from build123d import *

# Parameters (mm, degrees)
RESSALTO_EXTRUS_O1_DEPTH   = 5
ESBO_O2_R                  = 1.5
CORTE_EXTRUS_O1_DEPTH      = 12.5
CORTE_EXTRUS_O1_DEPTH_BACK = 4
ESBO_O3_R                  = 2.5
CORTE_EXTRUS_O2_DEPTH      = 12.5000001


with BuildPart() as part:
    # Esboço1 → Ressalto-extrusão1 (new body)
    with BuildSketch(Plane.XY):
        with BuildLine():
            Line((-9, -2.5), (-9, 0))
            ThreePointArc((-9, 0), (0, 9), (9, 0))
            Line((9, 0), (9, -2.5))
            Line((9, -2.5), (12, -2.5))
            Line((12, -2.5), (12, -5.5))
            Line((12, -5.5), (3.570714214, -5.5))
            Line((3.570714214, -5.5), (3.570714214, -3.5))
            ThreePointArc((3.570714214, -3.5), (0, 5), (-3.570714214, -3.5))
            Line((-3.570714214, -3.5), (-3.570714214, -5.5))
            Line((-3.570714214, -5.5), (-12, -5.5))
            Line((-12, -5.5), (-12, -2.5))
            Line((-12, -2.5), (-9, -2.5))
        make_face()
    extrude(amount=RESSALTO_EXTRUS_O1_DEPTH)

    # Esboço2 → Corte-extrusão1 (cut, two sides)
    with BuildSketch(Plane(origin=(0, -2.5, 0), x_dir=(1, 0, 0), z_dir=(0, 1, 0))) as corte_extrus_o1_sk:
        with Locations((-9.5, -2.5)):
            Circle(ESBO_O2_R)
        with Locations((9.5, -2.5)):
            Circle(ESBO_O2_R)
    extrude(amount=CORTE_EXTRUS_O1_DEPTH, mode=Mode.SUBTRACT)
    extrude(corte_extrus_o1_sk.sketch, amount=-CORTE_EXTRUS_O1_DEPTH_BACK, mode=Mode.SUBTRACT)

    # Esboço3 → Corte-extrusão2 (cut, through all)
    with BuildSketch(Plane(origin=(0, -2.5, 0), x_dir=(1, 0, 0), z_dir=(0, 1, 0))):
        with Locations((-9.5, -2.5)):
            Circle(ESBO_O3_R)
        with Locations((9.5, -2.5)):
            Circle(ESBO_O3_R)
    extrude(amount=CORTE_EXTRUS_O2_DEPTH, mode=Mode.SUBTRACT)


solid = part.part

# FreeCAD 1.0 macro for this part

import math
import FreeCAD as App
import Part
import Sketcher
Q = App.Units.Quantity

doc = App.newDocument("Part")
body = doc.addObject("PartDesign::Body", "Body")

sketch1 = body.newObject("Sketcher::SketchObject", "Sketch")
sketch1.AttachmentSupport = (doc.getObject("XY_Plane"), [""])
sketch1.MapMode = "FlatFace"
sketch1.addGeometry(Part.LineSegment(App.Vector(-9, 0, 0), App.Vector(-9, -2.5, 0)), False)
sketch1.addGeometry(Part.LineSegment(App.Vector(-9, -2.5, 0), App.Vector(-12, -2.5, 0)), False)
sketch1.addGeometry(Part.LineSegment(App.Vector(-12, -2.5, 0), App.Vector(-12, -5.5, 0)), False)
sketch1.addGeometry(Part.LineSegment(App.Vector(-12, -5.5, 0), App.Vector(-3.6, -5.5, 0)), False)
sketch1.addGeometry(Part.LineSegment(App.Vector(-3.6, -5.5, 0), App.Vector(-3.6, -3.5, 0)), False)
sketch1.addGeometry(Part.ArcOfCircle(Part.Circle(App.Vector(0, 0, 0), App.Vector(0, 0, 1), 5), math.radians(-44), math.radians(224)), False)
sketch1.addGeometry(Part.LineSegment(App.Vector(3.6, -3.5, 0), App.Vector(3.6, -5.5, 0)), False)
sketch1.addGeometry(Part.LineSegment(App.Vector(3.6, -5.5, 0), App.Vector(12, -5.5, 0)), False)
sketch1.addGeometry(Part.LineSegment(App.Vector(12, -5.5, 0), App.Vector(12, -2.5, 0)), False)
sketch1.addGeometry(Part.LineSegment(App.Vector(12, -2.5, 0), App.Vector(9, -2.5, 0)), False)
sketch1.addGeometry(Part.LineSegment(App.Vector(9, -2.5, 0), App.Vector(9, 0, 0)), False)
sketch1.addGeometry(Part.ArcOfCircle(Part.Circle(App.Vector(0, 0, 0), App.Vector(0, 0, 1), 9), math.radians(0), math.radians(180)), False)
sketch1.addConstraint(Sketcher.Constraint("Coincident", 0, 2, 1, 1))
sketch1.addConstraint(Sketcher.Constraint("Coincident", 1, 2, 2, 1))
sketch1.addConstraint(Sketcher.Constraint("Coincident", 2, 2, 3, 1))
sketch1.addConstraint(Sketcher.Constraint("Coincident", 3, 2, 4, 1))
sketch1.addConstraint(Sketcher.Constraint("Coincident", 4, 2, 5, 2))
sketch1.addConstraint(Sketcher.Constraint("Coincident", 5, 1, 6, 1))
sketch1.addConstraint(Sketcher.Constraint("Coincident", 6, 2, 7, 1))
sketch1.addConstraint(Sketcher.Constraint("Coincident", 7, 2, 8, 1))
sketch1.addConstraint(Sketcher.Constraint("Coincident", 8, 2, 9, 1))
sketch1.addConstraint(Sketcher.Constraint("Coincident", 9, 2, 10, 1))
sketch1.addConstraint(Sketcher.Constraint("Tangent", 10, 2, 11, 1))
sketch1.addConstraint(Sketcher.Constraint("Tangent", 11, 2, 0, 1))
sketch1.addConstraint(Sketcher.Constraint("Vertical", 0))
sketch1.addConstraint(Sketcher.Constraint("Horizontal", 1))
sketch1.addConstraint(Sketcher.Constraint("Vertical", 2))
sketch1.addConstraint(Sketcher.Constraint("Horizontal", 3))
sketch1.addConstraint(Sketcher.Constraint("Vertical", 4))
sketch1.addConstraint(Sketcher.Constraint("Vertical", 6))
sketch1.addConstraint(Sketcher.Constraint("Horizontal", 7))
sketch1.addConstraint(Sketcher.Constraint("Vertical", 8))
sketch1.addConstraint(Sketcher.Constraint("Horizontal", 9))
sketch1.addConstraint(Sketcher.Constraint("Vertical", 10))
sketch1.addConstraint(Sketcher.Constraint("Coincident", 5, 3, -1, 1))
sketch1.addConstraint(Sketcher.Constraint("Coincident", 11, 3, -1, 1))
sketch1.addConstraint(Sketcher.Constraint("Symmetric", 3, 2, 6, 2, -2))
sketch1.addConstraint(Sketcher.Constraint("Symmetric", 1, 2, 8, 2, -2))
sketch1.addConstraint(Sketcher.Constraint("Equal", 9, 2))
sketch1.addConstraint(Sketcher.Constraint("Radius", 5, Q("5 mm")))
sketch1.addConstraint(Sketcher.Constraint("Radius", 11, Q("9 mm")))
sketch1.addConstraint(Sketcher.Constraint("DistanceX", 1, 2, 1, 1, Q("3 mm")))
sketch1.addConstraint(Sketcher.Constraint("DistanceY", 4, 1, 4, 2, Q("2 mm")))
sketch1.addConstraint(Sketcher.Constraint("DistanceY", 0, 2, 0, 1, Q("2.5 mm")))
pad1 = body.newObject("PartDesign::Pad", "Pad")
pad1.Profile = sketch1
pad1.Length = 5

sketch2 = body.newObject("Sketcher::SketchObject", "Sketch001")
sketch2.AttachmentSupport = (doc.getObject("XZ_Plane"), [""])
sketch2.MapMode = "FlatFace"
sketch2.AttachmentOffset = App.Placement(App.Vector(0, 0, 2.5), App.Rotation())
sketch2.addGeometry(Part.Circle(App.Vector(-9.5, 2.5, 0), App.Vector(0, 0, 1), 1.5), False)
sketch2.addGeometry(Part.Circle(App.Vector(9.5, 2.5, 0), App.Vector(0, 0, 1), 1.5), False)
sketch2.addConstraint(Sketcher.Constraint("Equal", 0, 1))
sketch2.addConstraint(Sketcher.Constraint("Symmetric", 0, 3, 1, 3, -2))
sketch2.addConstraint(Sketcher.Constraint("Diameter", 0, Q("3 mm")))
sketch2.addConstraint(Sketcher.Constraint("DistanceX", 0, 3, 1, 3, Q("19 mm")))
sketch2.addConstraint(Sketcher.Constraint("DistanceY", -1, 1, 0, 3, Q("2.5 mm")))
pocket1 = body.newObject("PartDesign::Pocket", "Pocket")
pocket1.Profile = sketch2
pocket1.Type = "ThroughAll"
pocket1.Midplane = True

sketch3 = body.newObject("Sketcher::SketchObject", "Sketch002")
sketch3.AttachmentSupport = (doc.getObject("XZ_Plane"), [""])
sketch3.MapMode = "FlatFace"
sketch3.AttachmentOffset = App.Placement(App.Vector(0, 0, 2.5), App.Rotation())
sketch3.addGeometry(Part.Circle(App.Vector(-9.5, 2.5, 0), App.Vector(0, 0, 1), 2.5), False)
sketch3.addGeometry(Part.Circle(App.Vector(9.5, 2.5, 0), App.Vector(0, 0, 1), 2.5), False)
sketch3.addConstraint(Sketcher.Constraint("Equal", 0, 1))
sketch3.addConstraint(Sketcher.Constraint("Symmetric", 0, 3, 1, 3, -2))
sketch3.addConstraint(Sketcher.Constraint("Diameter", 0, Q("5 mm")))
sketch3.addConstraint(Sketcher.Constraint("DistanceX", 0, 3, 1, 3, Q("19 mm")))
sketch3.addConstraint(Sketcher.Constraint("DistanceY", -1, 1, 0, 3, Q("2.5 mm")))
pocket2 = body.newObject("PartDesign::Pocket", "Pocket001")
pocket2.Profile = sketch3
pocket2.Type = "ThroughAll"

doc.recompute()
